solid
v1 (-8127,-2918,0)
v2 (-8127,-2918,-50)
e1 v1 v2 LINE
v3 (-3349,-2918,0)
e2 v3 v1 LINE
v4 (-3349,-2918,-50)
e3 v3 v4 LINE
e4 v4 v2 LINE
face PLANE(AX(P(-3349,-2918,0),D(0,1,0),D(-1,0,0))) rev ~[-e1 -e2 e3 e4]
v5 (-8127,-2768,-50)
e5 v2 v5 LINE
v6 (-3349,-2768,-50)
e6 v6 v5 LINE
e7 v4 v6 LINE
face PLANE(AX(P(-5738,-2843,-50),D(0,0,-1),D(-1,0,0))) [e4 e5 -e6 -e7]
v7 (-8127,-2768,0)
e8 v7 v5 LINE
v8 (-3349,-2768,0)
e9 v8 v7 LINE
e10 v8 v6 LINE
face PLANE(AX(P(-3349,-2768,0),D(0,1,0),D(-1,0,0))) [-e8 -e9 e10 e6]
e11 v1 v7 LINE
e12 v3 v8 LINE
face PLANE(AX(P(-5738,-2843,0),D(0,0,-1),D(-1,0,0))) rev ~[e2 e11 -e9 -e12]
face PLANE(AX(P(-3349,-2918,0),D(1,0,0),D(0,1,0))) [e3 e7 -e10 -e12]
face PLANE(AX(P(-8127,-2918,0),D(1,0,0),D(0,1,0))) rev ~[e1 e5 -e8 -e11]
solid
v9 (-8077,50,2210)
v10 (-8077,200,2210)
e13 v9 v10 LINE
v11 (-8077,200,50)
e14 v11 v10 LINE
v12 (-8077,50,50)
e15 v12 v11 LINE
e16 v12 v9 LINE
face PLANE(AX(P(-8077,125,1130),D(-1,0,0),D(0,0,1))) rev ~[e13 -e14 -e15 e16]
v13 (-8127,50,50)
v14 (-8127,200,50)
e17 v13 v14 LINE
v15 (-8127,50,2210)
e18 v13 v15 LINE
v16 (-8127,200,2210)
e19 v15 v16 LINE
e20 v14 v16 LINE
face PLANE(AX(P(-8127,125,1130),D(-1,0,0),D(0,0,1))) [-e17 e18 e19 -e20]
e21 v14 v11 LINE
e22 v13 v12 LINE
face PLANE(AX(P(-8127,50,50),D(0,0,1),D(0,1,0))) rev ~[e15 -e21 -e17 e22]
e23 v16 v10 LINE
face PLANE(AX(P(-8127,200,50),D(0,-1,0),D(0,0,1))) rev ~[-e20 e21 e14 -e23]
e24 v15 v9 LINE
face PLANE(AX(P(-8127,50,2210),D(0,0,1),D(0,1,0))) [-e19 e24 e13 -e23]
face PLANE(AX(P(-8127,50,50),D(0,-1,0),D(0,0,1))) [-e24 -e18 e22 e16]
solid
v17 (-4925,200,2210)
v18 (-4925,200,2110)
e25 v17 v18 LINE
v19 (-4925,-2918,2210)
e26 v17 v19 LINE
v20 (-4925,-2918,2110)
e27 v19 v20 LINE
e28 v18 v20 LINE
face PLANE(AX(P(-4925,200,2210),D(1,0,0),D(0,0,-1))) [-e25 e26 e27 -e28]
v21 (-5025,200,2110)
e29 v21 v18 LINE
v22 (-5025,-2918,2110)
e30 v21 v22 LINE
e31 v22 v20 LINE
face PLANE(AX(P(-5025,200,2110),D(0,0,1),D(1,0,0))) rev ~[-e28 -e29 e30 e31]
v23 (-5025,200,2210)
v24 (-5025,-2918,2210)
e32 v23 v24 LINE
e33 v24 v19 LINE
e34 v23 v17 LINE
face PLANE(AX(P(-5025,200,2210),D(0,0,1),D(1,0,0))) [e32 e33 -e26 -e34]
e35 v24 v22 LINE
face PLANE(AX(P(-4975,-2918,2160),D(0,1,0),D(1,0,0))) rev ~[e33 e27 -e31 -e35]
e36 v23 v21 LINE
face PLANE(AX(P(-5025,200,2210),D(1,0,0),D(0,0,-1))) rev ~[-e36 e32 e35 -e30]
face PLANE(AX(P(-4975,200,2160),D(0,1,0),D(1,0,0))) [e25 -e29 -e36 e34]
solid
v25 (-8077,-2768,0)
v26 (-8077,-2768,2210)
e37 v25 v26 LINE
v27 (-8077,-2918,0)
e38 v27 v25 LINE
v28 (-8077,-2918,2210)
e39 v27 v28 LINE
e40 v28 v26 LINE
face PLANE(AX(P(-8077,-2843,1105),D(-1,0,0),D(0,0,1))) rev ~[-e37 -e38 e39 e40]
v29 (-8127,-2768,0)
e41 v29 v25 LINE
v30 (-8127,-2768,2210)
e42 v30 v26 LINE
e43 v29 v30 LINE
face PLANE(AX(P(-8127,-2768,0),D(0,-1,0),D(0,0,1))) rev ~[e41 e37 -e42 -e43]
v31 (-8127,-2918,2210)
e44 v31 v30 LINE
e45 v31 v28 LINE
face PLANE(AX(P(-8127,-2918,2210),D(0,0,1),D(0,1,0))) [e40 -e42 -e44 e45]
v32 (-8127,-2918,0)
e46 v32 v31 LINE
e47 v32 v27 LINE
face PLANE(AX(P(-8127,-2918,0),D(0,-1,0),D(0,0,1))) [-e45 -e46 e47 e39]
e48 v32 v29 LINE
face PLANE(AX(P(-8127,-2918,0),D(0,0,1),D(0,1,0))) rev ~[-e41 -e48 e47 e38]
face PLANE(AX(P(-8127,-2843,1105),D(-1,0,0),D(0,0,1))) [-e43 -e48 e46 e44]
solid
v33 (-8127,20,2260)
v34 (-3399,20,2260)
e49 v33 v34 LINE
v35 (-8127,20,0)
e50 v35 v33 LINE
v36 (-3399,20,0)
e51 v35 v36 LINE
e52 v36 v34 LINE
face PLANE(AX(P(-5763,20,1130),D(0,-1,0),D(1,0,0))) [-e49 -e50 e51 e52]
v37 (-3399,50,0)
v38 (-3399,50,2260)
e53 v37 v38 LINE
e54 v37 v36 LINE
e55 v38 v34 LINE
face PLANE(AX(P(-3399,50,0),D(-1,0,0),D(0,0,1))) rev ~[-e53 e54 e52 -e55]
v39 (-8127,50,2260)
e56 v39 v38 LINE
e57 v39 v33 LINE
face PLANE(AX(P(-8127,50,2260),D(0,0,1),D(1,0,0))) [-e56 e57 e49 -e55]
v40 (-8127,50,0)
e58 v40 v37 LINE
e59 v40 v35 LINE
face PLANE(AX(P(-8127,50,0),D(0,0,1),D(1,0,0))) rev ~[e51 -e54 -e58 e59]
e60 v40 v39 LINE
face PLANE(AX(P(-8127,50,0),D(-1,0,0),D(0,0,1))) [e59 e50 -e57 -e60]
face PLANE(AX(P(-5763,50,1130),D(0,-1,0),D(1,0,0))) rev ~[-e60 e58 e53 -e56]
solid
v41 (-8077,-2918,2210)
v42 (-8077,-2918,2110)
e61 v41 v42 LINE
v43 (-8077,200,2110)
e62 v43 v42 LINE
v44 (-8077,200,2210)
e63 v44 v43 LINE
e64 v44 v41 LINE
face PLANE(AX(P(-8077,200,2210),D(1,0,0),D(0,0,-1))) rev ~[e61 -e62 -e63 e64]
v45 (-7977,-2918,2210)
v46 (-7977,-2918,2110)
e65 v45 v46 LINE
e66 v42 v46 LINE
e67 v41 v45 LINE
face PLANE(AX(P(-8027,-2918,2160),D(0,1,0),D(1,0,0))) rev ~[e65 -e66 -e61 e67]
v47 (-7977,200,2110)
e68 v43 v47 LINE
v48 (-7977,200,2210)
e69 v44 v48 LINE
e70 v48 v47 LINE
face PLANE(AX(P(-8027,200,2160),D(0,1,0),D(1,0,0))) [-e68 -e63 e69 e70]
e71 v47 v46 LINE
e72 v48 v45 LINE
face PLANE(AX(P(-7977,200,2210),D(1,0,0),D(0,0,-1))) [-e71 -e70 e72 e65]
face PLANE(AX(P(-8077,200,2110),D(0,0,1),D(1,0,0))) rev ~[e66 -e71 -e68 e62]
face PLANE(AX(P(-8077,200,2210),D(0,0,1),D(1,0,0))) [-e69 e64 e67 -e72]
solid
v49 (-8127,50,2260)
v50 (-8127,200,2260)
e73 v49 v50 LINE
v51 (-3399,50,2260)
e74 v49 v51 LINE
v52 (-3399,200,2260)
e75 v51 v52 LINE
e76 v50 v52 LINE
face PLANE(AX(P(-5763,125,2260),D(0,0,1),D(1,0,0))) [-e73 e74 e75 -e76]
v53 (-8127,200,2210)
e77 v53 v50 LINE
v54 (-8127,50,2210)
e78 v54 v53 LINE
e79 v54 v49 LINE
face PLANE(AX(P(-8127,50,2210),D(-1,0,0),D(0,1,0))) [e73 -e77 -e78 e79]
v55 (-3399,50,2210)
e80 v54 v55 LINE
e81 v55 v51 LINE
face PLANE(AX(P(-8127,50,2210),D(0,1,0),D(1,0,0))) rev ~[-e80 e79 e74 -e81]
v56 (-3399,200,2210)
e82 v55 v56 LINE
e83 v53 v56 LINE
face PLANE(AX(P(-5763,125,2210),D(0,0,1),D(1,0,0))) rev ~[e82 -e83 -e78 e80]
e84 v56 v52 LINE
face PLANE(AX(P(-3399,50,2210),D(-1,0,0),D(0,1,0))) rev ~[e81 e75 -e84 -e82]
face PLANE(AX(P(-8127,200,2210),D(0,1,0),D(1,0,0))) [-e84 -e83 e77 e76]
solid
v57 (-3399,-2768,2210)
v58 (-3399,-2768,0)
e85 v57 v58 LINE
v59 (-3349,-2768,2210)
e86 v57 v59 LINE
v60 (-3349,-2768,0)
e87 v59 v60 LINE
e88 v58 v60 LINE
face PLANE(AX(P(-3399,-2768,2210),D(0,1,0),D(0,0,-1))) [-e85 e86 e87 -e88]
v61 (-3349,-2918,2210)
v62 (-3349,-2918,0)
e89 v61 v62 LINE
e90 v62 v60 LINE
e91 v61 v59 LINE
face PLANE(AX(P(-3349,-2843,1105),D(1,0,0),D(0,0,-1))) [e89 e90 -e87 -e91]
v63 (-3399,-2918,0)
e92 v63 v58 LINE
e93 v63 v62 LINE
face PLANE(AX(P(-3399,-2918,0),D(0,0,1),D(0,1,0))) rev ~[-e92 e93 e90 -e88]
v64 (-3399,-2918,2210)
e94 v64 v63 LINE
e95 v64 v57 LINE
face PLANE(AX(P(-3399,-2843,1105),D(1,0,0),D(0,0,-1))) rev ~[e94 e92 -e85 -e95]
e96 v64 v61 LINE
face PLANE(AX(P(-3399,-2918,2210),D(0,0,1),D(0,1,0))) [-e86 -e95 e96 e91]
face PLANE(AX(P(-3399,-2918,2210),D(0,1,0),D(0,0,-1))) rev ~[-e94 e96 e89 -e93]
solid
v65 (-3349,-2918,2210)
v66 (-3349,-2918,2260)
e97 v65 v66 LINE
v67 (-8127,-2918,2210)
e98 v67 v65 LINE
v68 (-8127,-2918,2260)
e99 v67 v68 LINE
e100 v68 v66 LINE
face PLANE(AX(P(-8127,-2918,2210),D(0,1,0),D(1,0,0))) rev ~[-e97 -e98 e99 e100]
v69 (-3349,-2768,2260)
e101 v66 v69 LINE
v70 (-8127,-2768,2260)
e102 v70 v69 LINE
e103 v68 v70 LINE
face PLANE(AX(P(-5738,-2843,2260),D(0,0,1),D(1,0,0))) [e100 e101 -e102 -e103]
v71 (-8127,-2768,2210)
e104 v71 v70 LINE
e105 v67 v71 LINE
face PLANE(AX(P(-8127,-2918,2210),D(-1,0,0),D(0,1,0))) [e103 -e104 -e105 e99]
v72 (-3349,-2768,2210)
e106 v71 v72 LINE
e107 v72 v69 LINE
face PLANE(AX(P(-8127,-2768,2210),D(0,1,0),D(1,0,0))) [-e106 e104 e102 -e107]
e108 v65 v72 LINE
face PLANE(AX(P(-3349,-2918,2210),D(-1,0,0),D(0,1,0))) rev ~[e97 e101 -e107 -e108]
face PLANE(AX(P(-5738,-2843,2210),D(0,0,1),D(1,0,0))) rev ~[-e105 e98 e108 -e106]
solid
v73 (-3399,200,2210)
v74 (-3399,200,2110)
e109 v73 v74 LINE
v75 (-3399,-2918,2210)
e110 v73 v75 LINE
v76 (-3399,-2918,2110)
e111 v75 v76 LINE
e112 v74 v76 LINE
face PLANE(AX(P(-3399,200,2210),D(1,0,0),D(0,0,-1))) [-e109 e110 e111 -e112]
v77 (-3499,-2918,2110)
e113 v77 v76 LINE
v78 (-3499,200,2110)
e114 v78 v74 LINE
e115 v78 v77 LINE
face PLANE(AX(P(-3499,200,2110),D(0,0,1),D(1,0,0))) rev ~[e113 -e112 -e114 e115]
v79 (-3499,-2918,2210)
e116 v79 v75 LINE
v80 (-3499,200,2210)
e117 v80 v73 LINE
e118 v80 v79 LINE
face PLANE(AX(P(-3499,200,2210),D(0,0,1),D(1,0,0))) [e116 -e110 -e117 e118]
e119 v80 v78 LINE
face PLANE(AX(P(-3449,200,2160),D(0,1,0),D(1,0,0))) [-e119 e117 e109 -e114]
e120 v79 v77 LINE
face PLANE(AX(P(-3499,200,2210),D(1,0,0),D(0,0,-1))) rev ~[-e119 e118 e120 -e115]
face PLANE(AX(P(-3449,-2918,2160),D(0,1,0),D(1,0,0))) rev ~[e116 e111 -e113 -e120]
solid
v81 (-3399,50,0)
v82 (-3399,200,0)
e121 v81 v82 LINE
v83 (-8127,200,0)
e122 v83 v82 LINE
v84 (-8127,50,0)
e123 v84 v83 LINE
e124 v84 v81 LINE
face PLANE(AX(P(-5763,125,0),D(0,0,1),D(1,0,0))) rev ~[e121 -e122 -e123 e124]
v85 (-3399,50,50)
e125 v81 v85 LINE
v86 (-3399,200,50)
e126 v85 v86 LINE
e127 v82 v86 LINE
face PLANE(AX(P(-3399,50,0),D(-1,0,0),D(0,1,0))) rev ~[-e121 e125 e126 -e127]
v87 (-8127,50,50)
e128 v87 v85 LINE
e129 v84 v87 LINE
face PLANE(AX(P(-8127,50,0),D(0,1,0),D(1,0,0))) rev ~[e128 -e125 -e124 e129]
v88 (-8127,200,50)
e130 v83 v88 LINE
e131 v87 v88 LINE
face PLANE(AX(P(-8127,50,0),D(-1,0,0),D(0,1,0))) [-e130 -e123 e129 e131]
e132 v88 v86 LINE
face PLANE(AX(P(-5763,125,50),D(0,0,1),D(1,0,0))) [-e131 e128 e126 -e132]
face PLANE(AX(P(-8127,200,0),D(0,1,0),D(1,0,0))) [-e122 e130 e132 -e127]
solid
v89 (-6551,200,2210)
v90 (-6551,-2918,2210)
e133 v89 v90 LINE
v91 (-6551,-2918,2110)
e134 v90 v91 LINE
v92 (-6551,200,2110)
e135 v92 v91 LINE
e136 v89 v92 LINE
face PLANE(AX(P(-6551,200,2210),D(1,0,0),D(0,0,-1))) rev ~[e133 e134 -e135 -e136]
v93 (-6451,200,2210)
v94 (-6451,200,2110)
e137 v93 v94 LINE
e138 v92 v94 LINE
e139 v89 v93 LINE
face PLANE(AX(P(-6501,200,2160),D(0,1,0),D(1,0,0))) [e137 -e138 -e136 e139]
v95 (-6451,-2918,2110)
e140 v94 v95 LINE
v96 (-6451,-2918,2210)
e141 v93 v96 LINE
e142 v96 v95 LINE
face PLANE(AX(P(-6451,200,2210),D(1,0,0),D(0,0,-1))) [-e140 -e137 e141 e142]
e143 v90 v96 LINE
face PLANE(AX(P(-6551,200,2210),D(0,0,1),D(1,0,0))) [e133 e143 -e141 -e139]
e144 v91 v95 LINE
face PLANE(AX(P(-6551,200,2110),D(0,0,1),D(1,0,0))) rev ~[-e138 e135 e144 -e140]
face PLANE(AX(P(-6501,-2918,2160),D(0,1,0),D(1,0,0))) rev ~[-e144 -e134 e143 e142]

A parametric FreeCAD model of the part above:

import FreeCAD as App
import Part
import Sketcher

V = App.Vector


def add_polygon(sketch, points):
    """Adds a closed chain of lines whose ends are joined by coincident constraints."""
    first, n = sketch.GeometryCount, len(points)
    for a, b in zip(points, points[1:] + points[:1]):
        sketch.addGeometry(Part.LineSegment(App.Vector(*a, 0), App.Vector(*b, 0)), False)
    for i in range(n):
        sketch.addConstraint(Sketcher.Constraint("Coincident", first + i, 2, first + (i + 1) % n, 1))

doc = App.newDocument("Part")
body = doc.addObject("PartDesign::Body", "Body")

sketch1 = doc.addObject("Sketcher::SketchObject", "Sketch")
body.addObject(sketch1)
sketch1.AttachmentSupport = (doc.XY_Plane, [""])
sketch1.MapMode = "FlatFace"
add_polygon(sketch1, [(-8127, 200), (-8127, 50), (-3399, 50), (-3399, 200)])
sketch1.addConstraint([
    Sketcher.Constraint("Vertical", 0),
    Sketcher.Constraint("Horizontal", 1),
    Sketcher.Constraint("Vertical", 2),
    Sketcher.Constraint("Horizontal", 3),
    Sketcher.Constraint("DistanceX", 1, 1, 1, 2, 4728.0),
    Sketcher.Constraint("DistanceY", 0, 2, 0, 1, 150.0),
    Sketcher.Constraint("DistanceX", 0, 2, -1, 1, 8127.0),
    Sketcher.Constraint("DistanceY", -1, 1, 0, 2, 50.0),
])
pad1 = doc.addObject("PartDesign::Pad", "Pad")
body.addObject(pad1)
pad1.Profile = sketch1
pad1.Length = 50
body2 = doc.addObject("PartDesign::Body", "Body001")

sketch2 = doc.addObject("Sketcher::SketchObject", "Sketch001")
body2.addObject(sketch2)
sketch2.AttachmentSupport = (doc.getObject("XY_Plane001"), [""])
sketch2.MapMode = "FlatFace"
sketch2.AttachmentOffset = App.Placement(V(0, 0, 2210), App.Rotation())
add_polygon(sketch2, [(-8127, 200), (-8127, 50), (-3399, 50), (-3399, 200)])
sketch2.addConstraint([
    Sketcher.Constraint("Vertical", 0),
    Sketcher.Constraint("Horizontal", 1),
    Sketcher.Constraint("Vertical", 2),
    Sketcher.Constraint("Horizontal", 3),
    Sketcher.Constraint("DistanceX", 1, 1, 1, 2, 4728.0),
    Sketcher.Constraint("DistanceY", 0, 2, 0, 1, 150.0),
    Sketcher.Constraint("DistanceX", 0, 2, -1, 1, 8127.0),
    Sketcher.Constraint("DistanceY", -1, 1, 0, 2, 50.0),
])
pad2 = doc.addObject("PartDesign::Pad", "Pad001")
body2.addObject(pad2)
pad2.Profile = sketch2
pad2.Length = 50
body3 = doc.addObject("PartDesign::Body", "Body002")

sketch3 = doc.addObject("Sketcher::SketchObject", "Sketch002")
body3.addObject(sketch3)
sketch3.AttachmentSupport = (doc.getObject("XZ_Plane002"), [""])
sketch3.MapMode = "FlatFace"
sketch3.AttachmentOffset = App.Placement(V(0, 0, -200), App.Rotation())
add_polygon(sketch3, [(-3499, 2110), (-3499, 2210), (-3399, 2210), (-3399, 2110)])
sketch3.addConstraint([
    Sketcher.Constraint("Vertical", 0),
    Sketcher.Constraint("Horizontal", 1),
    Sketcher.Constraint("Vertical", 2),
    Sketcher.Constraint("Horizontal", 3),
    Sketcher.Constraint("Equal", 3, 0),
    Sketcher.Constraint("DistanceX", 1, 1, 1, 2, 100.0),
    Sketcher.Constraint("DistanceX", 0, 2, -1, 1, 3499.0),
    Sketcher.Constraint("DistanceY", -1, 1, 0, 2, 2210.0),
])
pad3 = doc.addObject("PartDesign::Pad", "Pad002")
body3.addObject(pad3)
pad3.Profile = sketch3
pad3.Length = 3118
body4 = doc.addObject("PartDesign::Body", "Body003")

sketch4 = doc.addObject("Sketcher::SketchObject", "Sketch003")
body4.addObject(sketch4)
sketch4.AttachmentSupport = (doc.getObject("XZ_Plane003"), [""])
sketch4.MapMode = "FlatFace"
sketch4.AttachmentOffset = App.Placement(V(0, 0, -200), App.Rotation())
add_polygon(sketch4, [(-8077, 2110), (-8077, 2210), (-7977, 2210), (-7977, 2110)])
sketch4.addConstraint([
    Sketcher.Constraint("Vertical", 0),
    Sketcher.Constraint("Horizontal", 1),
    Sketcher.Constraint("Vertical", 2),
    Sketcher.Constraint("Horizontal", 3),
    Sketcher.Constraint("Equal", 3, 0),
    Sketcher.Constraint("DistanceX", 1, 1, 1, 2, 100.0),
    Sketcher.Constraint("DistanceX", 0, 2, -1, 1, 8077.0),
    Sketcher.Constraint("DistanceY", -1, 1, 0, 2, 2210.0),
])
pad4 = doc.addObject("PartDesign::Pad", "Pad003")
body4.addObject(pad4)
pad4.Profile = sketch4
pad4.Length = 3118
body5 = doc.addObject("PartDesign::Body", "Body004")

sketch5 = doc.addObject("Sketcher::SketchObject", "Sketch004")
body5.addObject(sketch5)
sketch5.AttachmentSupport = (doc.getObject("XZ_Plane004"), [""])
sketch5.MapMode = "FlatFace"
sketch5.AttachmentOffset = App.Placement(V(0, 0, -200), App.Rotation())
add_polygon(sketch5, [(-6551, 2110), (-6551, 2210), (-6451, 2210), (-6451, 2110)])
sketch5.addConstraint([
    Sketcher.Constraint("Vertical", 0),
    Sketcher.Constraint("Horizontal", 1),
    Sketcher.Constraint("Vertical", 2),
    Sketcher.Constraint("Horizontal", 3),
    Sketcher.Constraint("Equal", 3, 0),
    Sketcher.Constraint("DistanceX", 1, 1, 1, 2, 100.0),
    Sketcher.Constraint("DistanceX", 0, 2, -1, 1, 6551.0),
    Sketcher.Constraint("DistanceY", -1, 1, 0, 2, 2210.0),
])
pad5 = doc.addObject("PartDesign::Pad", "Pad004")
body5.addObject(pad5)
pad5.Profile = sketch5
pad5.Length = 3118
body6 = doc.addObject("PartDesign::Body", "Body005")

sketch6 = doc.addObject("Sketcher::SketchObject", "Sketch005")
body6.addObject(sketch6)
sketch6.AttachmentSupport = (doc.getObject("XZ_Plane005"), [""])
sketch6.MapMode = "FlatFace"
sketch6.AttachmentOffset = App.Placement(V(0, 0, -200), App.Rotation())
add_polygon(sketch6, [(-5025, 2110), (-5025, 2210), (-4925, 2210), (-4925, 2110)])
sketch6.addConstraint([
    Sketcher.Constraint("Vertical", 0),
    Sketcher.Constraint("Horizontal", 1),
    Sketcher.Constraint("Vertical", 2),
    Sketcher.Constraint("Horizontal", 3),
    Sketcher.Constraint("Equal", 3, 0),
    Sketcher.Constraint("DistanceX", 1, 1, 1, 2, 100.0),
    Sketcher.Constraint("DistanceX", 0, 2, -1, 1, 5025.0),
    Sketcher.Constraint("DistanceY", -1, 1, 0, 2, 2210.0),
])
pad6 = doc.addObject("PartDesign::Pad", "Pad005")
body6.addObject(pad6)
pad6.Profile = sketch6
pad6.Length = 3118
body7 = doc.addObject("PartDesign::Body", "Body006")

sketch7 = doc.addObject("Sketcher::SketchObject", "Sketch006")
body7.addObject(sketch7)
sketch7.AttachmentSupport = (doc.getObject("XY_Plane006"), [""])
sketch7.MapMode = "FlatFace"
sketch7.AttachmentOffset = App.Placement(V(0, 0, 2210), App.Rotation())
add_polygon(sketch7, [(-8127, -2768), (-8127, -2918), (-3349, -2918), (-3349, -2768)])
sketch7.addConstraint([
    Sketcher.Constraint("Vertical", 0),
    Sketcher.Constraint("Horizontal", 1),
    Sketcher.Constraint("Vertical", 2),
    Sketcher.Constraint("Horizontal", 3),
    Sketcher.Constraint("DistanceX", 1, 1, 1, 2, 4778.0),
    Sketcher.Constraint("DistanceY", 0, 2, 0, 1, 150.0),
    Sketcher.Constraint("DistanceX", 0, 2, -1, 1, 8127.0),
    Sketcher.Constraint("DistanceY", 0, 2, -1, 1, 2918.0),
])
pad7 = doc.addObject("PartDesign::Pad", "Pad006")
body7.addObject(pad7)
pad7.Profile = sketch7
pad7.Length = 50
body8 = doc.addObject("PartDesign::Body", "Body007")

sketch8 = doc.addObject("Sketcher::SketchObject", "Sketch007")
body8.addObject(sketch8)
sketch8.AttachmentSupport = (doc.getObject("YZ_Plane007"), [""])
sketch8.MapMode = "FlatFace"
sketch8.AttachmentOffset = App.Placement(V(0, 0, -8127), App.Rotation())
add_polygon(sketch8, [(-2768, 0), (-2918, 0), (-2918, 2210), (-2768, 2210)])
sketch8.addConstraint([
    Sketcher.Constraint("Horizontal", 0),
    Sketcher.Constraint("Vertical", 1),
    Sketcher.Constraint("Horizontal", 2),
    Sketcher.Constraint("Vertical", 3),
    Sketcher.Constraint("PointOnObject", 0, 2, -1),
    Sketcher.Constraint("DistanceX", 0, 2, 0, 1, 150.0),
    Sketcher.Constraint("DistanceY", 1, 1, 1, 2, 2210.0),
    Sketcher.Constraint("DistanceX", 0, 2, -1, 1, 2918.0),
])
pad8 = doc.addObject("PartDesign::Pad", "Pad007")
body8.addObject(pad8)
pad8.Profile = sketch8
pad8.Length = 50
body9 = doc.addObject("PartDesign::Body", "Body008")

sketch9 = doc.addObject("Sketcher::SketchObject", "Sketch008")
body9.addObject(sketch9)
sketch9.AttachmentSupport = (doc.getObject("YZ_Plane008"), [""])
sketch9.MapMode = "FlatFace"
sketch9.AttachmentOffset = App.Placement(V(0, 0, -8127), App.Rotation())
add_polygon(sketch9, [(200, 50), (50, 50), (50, 2210), (200, 2210)])
sketch9.addConstraint([
    Sketcher.Constraint("Horizontal", 0),
    Sketcher.Constraint("Vertical", 1),
    Sketcher.Constraint("Horizontal", 2),
    Sketcher.Constraint("Vertical", 3),
    Sketcher.Constraint("DistanceX", 0, 2, 0, 1, 150.0),
    Sketcher.Constraint("DistanceY", 1, 1, 1, 2, 2160.0),
    Sketcher.Constraint("DistanceX", -1, 1, 0, 2, 50.0),
    Sketcher.Constraint("DistanceY", -1, 1, 0, 2, 50.0),
])
pad9 = doc.addObject("PartDesign::Pad", "Pad008")
body9.addObject(pad9)
pad9.Profile = sketch9
pad9.Length = 50
body10 = doc.addObject("PartDesign::Body", "Body009")

sketch10 = doc.addObject("Sketcher::SketchObject", "Sketch009")
body10.addObject(sketch10)
sketch10.AttachmentSupport = (doc.getObject("XY_Plane009"), [""])
sketch10.MapMode = "FlatFace"
add_polygon(sketch10, [(-3349, -2768), (-3349, -2918), (-8127, -2918), (-8127, -2768)])
sketch10.addConstraint([
    Sketcher.Constraint("Vertical", 0),
    Sketcher.Constraint("Horizontal", 1),
    Sketcher.Constraint("Vertical", 2),
    Sketcher.Constraint("Horizontal", 3),
    Sketcher.Constraint("DistanceX", 1, 2, 1, 1, 4778.0),
    Sketcher.Constraint("DistanceY", 0, 2, 0, 1, 150.0),
    Sketcher.Constraint("DistanceX", 0, 2, -1, 1, 3349.0),
    Sketcher.Constraint("DistanceY", 0, 2, -1, 1, 2918.0),
])
pad10 = doc.addObject("PartDesign::Pad", "Pad009")
body10.addObject(pad10)
pad10.Profile = sketch10
pad10.Length = 50
pad10.Reversed = True
body11 = doc.addObject("PartDesign::Body", "Body010")

sketch11 = doc.addObject("Sketcher::SketchObject", "Sketch010")
body11.addObject(sketch11)
sketch11.AttachmentSupport = (doc.getObject("YZ_Plane010"), [""])
sketch11.MapMode = "FlatFace"
sketch11.AttachmentOffset = App.Placement(V(0, 0, -3399), App.Rotation())
add_polygon(sketch11, [(-2768, 2210), (-2918, 2210), (-2918, 0), (-2768, 0)])
sketch11.addConstraint([
    Sketcher.Constraint("Horizontal", 0),
    Sketcher.Constraint("Vertical", 1),
    Sketcher.Constraint("Horizontal", 2),
    Sketcher.Constraint("Vertical", 3),
    Sketcher.Constraint("PointOnObject", 1, 2, -1),
    Sketcher.Constraint("DistanceX", 0, 2, 0, 1, 150.0),
    Sketcher.Constraint("DistanceY", 1, 2, 1, 1, 2210.0),
    Sketcher.Constraint("DistanceX", 0, 2, -1, 1, 2918.0),
])
pad11 = doc.addObject("PartDesign::Pad", "Pad010")
body11.addObject(pad11)
pad11.Profile = sketch11
pad11.Length = 50
body12 = doc.addObject("PartDesign::Body", "Body011")

sketch12 = doc.addObject("Sketcher::SketchObject", "Sketch011")
body12.addObject(sketch12)
sketch12.AttachmentSupport = (doc.getObject("XZ_Plane011"), [""])
sketch12.MapMode = "FlatFace"
sketch12.AttachmentOffset = App.Placement(V(0, 0, -50), App.Rotation())
add_polygon(sketch12, [(-8127, 2260), (-8127, 0), (-3399, 0), (-3399, 2260)])
sketch12.addConstraint([
    Sketcher.Constraint("Vertical", 0),
    Sketcher.Constraint("Horizontal", 1),
    Sketcher.Constraint("Vertical", 2),
    Sketcher.Constraint("Horizontal", 3),
    Sketcher.Constraint("PointOnObject", 0, 2, -1),
    Sketcher.Constraint("DistanceX", 1, 1, 1, 2, 4728.0),
    Sketcher.Constraint("DistanceY", 0, 2, 0, 1, 2260.0),
    Sketcher.Constraint("DistanceX", 0, 2, -1, 1, 8127.0),
])
pad12 = doc.addObject("PartDesign::Pad", "Pad011")
body12.addObject(pad12)
pad12.Profile = sketch12
pad12.Length = 30

doc.recompute()
